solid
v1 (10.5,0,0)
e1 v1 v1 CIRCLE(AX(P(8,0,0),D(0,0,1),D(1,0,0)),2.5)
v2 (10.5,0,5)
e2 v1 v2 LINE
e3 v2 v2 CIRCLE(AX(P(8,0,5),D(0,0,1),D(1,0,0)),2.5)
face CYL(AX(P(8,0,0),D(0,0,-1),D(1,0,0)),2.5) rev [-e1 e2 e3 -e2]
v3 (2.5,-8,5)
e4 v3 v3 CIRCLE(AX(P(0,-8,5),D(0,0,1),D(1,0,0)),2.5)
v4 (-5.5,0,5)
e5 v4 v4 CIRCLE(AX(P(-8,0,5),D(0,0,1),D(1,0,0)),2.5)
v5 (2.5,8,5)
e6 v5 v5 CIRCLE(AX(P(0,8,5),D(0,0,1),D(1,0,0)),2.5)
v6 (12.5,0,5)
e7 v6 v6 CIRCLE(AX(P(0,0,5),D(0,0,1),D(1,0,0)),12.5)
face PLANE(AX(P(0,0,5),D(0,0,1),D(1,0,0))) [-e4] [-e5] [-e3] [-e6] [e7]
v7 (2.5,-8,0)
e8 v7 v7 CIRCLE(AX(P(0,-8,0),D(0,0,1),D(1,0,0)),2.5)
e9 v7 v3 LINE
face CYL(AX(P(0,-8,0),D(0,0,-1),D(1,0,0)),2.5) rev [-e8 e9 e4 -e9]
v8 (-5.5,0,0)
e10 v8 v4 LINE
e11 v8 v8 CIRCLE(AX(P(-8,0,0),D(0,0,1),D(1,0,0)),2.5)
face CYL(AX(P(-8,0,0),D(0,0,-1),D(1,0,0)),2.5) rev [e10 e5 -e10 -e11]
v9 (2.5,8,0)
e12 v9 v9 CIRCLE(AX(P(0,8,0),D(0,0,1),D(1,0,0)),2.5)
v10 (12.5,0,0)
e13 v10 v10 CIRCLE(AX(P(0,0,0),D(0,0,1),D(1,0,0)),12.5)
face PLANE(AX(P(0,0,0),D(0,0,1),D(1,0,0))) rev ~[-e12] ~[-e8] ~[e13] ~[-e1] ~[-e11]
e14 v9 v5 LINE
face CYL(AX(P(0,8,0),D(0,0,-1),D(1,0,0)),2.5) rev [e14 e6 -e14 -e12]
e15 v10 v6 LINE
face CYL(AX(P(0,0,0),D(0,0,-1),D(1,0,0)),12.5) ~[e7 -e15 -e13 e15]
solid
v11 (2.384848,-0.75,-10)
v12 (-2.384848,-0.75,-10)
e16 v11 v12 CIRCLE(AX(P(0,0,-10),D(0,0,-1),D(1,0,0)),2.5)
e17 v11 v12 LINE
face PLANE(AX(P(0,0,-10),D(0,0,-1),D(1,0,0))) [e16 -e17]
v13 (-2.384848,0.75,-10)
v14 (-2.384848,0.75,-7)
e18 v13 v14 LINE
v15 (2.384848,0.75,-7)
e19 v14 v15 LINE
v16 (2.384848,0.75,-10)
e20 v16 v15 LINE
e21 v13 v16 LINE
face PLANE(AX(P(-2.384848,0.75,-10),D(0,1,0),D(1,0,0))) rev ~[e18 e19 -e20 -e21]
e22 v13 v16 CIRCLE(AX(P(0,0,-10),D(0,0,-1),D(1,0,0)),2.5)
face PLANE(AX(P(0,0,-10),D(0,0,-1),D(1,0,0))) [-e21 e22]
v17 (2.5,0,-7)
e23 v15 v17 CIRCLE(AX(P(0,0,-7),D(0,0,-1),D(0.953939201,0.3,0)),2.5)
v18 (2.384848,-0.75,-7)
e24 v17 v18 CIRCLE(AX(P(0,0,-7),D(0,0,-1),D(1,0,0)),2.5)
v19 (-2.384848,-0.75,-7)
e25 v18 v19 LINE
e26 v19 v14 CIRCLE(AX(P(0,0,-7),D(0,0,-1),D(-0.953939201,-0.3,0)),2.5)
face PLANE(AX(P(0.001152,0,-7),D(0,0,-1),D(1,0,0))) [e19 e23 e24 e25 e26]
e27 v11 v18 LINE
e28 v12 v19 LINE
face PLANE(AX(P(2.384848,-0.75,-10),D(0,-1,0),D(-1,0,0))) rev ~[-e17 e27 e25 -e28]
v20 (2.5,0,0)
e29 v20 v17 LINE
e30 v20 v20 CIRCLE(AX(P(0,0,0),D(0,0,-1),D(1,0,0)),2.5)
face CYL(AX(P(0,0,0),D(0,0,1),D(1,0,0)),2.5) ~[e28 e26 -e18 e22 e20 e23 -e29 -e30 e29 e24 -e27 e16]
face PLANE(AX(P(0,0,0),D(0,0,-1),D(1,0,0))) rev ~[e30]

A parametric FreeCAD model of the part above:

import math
import FreeCAD as App
import Part
import Sketcher

V = App.Vector

doc = App.newDocument("Part")
body = doc.addObject("PartDesign::Body", "Body")

sketch1 = doc.addObject("Sketcher::SketchObject", "Sketch")
body.addObject(sketch1)
sketch1.AttachmentSupport = (doc.XY_Plane, [""])
sketch1.MapMode = "FlatFace"
sketch1.addGeometry([
    Part.Circle(V(0, 0, 0), V(0, 0, 1), 12.5),
    Part.Circle(V(0, -8, 0), V(0, 0, 1), 2.5),
    Part.Circle(V(-8, 0, 0), V(0, 0, 1), 2.5),
    Part.Circle(V(8, 0, 0), V(0, 0, 1), 2.5),
    Part.Circle(V(0, 8, 0), V(0, 0, 1), 2.5),
], False)
sketch1.addConstraint([
    Sketcher.Constraint("Coincident", 0, 3, -1, 1),
    Sketcher.Constraint("Equal", 1, 2),
    Sketcher.Constraint("Equal", 2, 3),
    Sketcher.Constraint("Equal", 3, 4),
    Sketcher.Constraint("Symmetric", 2, 3, 3, 3, -1, 1),
    Sketcher.Constraint("Symmetric", 1, 3, 4, 3, -1, 1),
    Sketcher.Constraint("PointOnObject", 1, 3, -2),
    Sketcher.Constraint("PointOnObject", 2, 3, -1),
    Sketcher.Constraint("Diameter", 0, 25.0),
    Sketcher.Constraint("Diameter", 1, 5.0),
    Sketcher.Constraint("DistanceY", 1, 3, -1, 1, 8.0),
    Sketcher.Constraint("DistanceX", 2, 3, -1, 1, 8.0),
])
pad1 = doc.addObject("PartDesign::Pad", "Pad")
body.addObject(pad1)
pad1.Profile = sketch1
pad1.Length = 5
body2 = doc.addObject("PartDesign::Body", "Body001")

sketch2 = doc.addObject("Sketcher::SketchObject", "Sketch001")
body2.addObject(sketch2)
sketch2.AttachmentSupport = (doc.getObject("XY_Plane001"), [""])
sketch2.MapMode = "FlatFace"
sketch2.addGeometry(Part.Circle(V(0, 0, 0), V(0, 0, 1), 2.5), False)
sketch2.addConstraint([
    Sketcher.Constraint("Coincident", 0, 3, -1, 1),
    Sketcher.Constraint("Diameter", 0, 5.0),
])
pad2 = doc.addObject("PartDesign::Pad", "Pad001")
body2.addObject(pad2)
pad2.Profile = sketch2
pad2.Length = 10
pad2.Reversed = True

sketch3 = doc.addObject("Sketcher::SketchObject", "Sketch002")
body2.addObject(sketch3)
sketch3.AttachmentSupport = (doc.getObject("XY_Plane001"), [""])
sketch3.MapMode = "FlatFace"
sketch3.AttachmentOffset = App.Placement(V(0, 0, -10), App.Rotation())
sketch3.addGeometry([
    Part.ArcOfCircle(Part.Circle(V(0, 0, 0), V(0, 0, 1), 2.5), math.radians(-17.46), math.radians(0)),
    Part.LineSegment(V(2.4, -0.8, 0), V(-2.4, -0.8, 0)),
    Part.ArcOfCircle(Part.Circle(V(0, 0, 0), V(0, 0, 1), 2.5), math.radians(163), math.radians(197)),
    Part.LineSegment(V(-2.4, 0.8, 0), V(2.4, 0.8, 0)),
    Part.ArcOfCircle(Part.Circle(V(0, 0, 0), V(0, 0, 1), 2.5), math.radians(0), math.radians(17.46)),
], False)
sketch3.addConstraint([
    Sketcher.Constraint("Coincident", 0, 1, 1, 1),
    Sketcher.Constraint("Coincident", 1, 2, 2, 2),
    Sketcher.Constraint("Coincident", 2, 1, 3, 1),
    Sketcher.Constraint("Coincident", 3, 2, 4, 2),
    Sketcher.Constraint("Tangent", 4, 1, 0, 2),
    Sketcher.Constraint("Horizontal", 1),
    Sketcher.Constraint("Horizontal", 3),
    Sketcher.Constraint("Coincident", 0, 3, -1, 1),
    Sketcher.Constraint("Coincident", 2, 3, -1, 1),
    Sketcher.Constraint("Equal", 0, 2),
    Sketcher.Constraint("Equal", 2, 4),
    Sketcher.Constraint("PointOnObject", 4, 1, -1),
    Sketcher.Constraint("Vertical", 1, 2, 2, 1),
    Sketcher.Constraint("Radius", 0, 2.5),
    Sketcher.Constraint("DistanceY", 1, 2, 2, 1, 1.5),
])
pocket1 = doc.addObject("PartDesign::Pocket", "Pocket")
body2.addObject(pocket1)
pocket1.Profile = sketch3
pocket1.Length = 3
pocket1.Reversed = True

doc.recompute()
